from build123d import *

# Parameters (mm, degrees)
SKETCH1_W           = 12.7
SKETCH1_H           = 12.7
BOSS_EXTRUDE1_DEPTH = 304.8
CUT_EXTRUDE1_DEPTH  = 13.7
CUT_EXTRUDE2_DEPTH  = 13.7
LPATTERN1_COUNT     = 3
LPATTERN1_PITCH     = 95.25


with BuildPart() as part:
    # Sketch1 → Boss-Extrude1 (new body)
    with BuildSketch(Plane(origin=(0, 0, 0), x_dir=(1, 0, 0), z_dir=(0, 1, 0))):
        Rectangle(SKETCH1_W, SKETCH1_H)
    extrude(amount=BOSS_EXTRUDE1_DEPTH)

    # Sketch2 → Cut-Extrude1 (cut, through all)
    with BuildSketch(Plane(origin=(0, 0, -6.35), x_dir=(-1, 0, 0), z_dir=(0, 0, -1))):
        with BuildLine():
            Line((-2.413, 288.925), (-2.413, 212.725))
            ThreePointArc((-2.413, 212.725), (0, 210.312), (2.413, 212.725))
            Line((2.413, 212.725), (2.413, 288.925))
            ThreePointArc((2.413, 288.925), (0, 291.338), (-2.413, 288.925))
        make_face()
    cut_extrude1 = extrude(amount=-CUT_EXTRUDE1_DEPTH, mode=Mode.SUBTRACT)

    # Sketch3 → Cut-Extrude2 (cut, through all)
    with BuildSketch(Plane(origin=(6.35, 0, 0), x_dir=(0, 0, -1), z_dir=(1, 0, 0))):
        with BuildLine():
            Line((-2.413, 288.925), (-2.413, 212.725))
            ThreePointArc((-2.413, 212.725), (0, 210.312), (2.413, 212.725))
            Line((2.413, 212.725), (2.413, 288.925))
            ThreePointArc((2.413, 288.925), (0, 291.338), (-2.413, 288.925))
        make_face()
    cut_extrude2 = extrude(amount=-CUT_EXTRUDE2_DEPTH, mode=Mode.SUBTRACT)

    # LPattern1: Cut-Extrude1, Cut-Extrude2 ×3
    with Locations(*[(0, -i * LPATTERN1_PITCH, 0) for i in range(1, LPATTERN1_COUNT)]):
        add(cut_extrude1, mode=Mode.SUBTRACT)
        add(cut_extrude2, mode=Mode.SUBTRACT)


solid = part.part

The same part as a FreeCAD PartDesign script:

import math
import FreeCAD as App
import Part
import Sketcher
Q = App.Units.Quantity

doc = App.newDocument("Part")
body = doc.addObject("PartDesign::Body", "Body")

sketch1 = body.newObject("Sketcher::SketchObject", "Sketch")
sketch1.AttachmentSupport = (doc.getObject("XZ_Plane"), [""])
sketch1.MapMode = "FlatFace"
sketch1.addGeometry([
    Part.LineSegment(App.Vector(-6.35, -6.35, 0), App.Vector(-6.35, 6.35, 0)),
    Part.LineSegment(App.Vector(-6.35, 6.35, 0), App.Vector(6.35, 6.35, 0)),
    Part.LineSegment(App.Vector(6.35, 6.35, 0), App.Vector(6.35, -6.35, 0)),
    Part.LineSegment(App.Vector(6.35, -6.35, 0), App.Vector(-6.35, -6.35, 0)),
], False)
sketch1.addConstraint([
    Sketcher.Constraint("Coincident", 0, 2, 1, 1),
    Sketcher.Constraint("Coincident", 1, 2, 2, 1),
    Sketcher.Constraint("Coincident", 2, 2, 3, 1),
    Sketcher.Constraint("Coincident", 3, 2, 0, 1),
    Sketcher.Constraint("Vertical", 0),
    Sketcher.Constraint("Horizontal", 1),
    Sketcher.Constraint("Vertical", 2),
    Sketcher.Constraint("Horizontal", 3),
    Sketcher.Constraint("Symmetric", 0, 2, 2, 2, -1, 1),
    Sketcher.Constraint("Equal", 3, 0),
    Sketcher.Constraint("DistanceX", 1, 1, 1, 2, Q("0.5 in")),
])
pad1 = body.newObject("PartDesign::Pad", "Pad")
pad1.Profile = sketch1
pad1.Length = Q("12 in")
pad1.Reversed = True

sketch2 = body.newObject("Sketcher::SketchObject", "Sketch001")
sketch2.AttachmentSupport = (doc.getObject("XY_Plane"), [""])
sketch2.MapMode = "FlatFace"
sketch2.AttachmentOffset = App.Placement(App.Vector(0, 0, -0.25 * 25.4), App.Rotation())
sketch2.addGeometry([
    Part.LineSegment(App.Vector(2.413, 288.925, 0), App.Vector(2.413, 212.725, 0)),
    Part.ArcOfCircle(Part.Circle(App.Vector(0, 212.725, 0), App.Vector(0, 0, 1), 2.413), math.radians(180), math.radians(360)),
    Part.LineSegment(App.Vector(-2.413, 212.725, 0), App.Vector(-2.413, 288.925, 0)),
    Part.ArcOfCircle(Part.Circle(App.Vector(0, 288.925, 0), App.Vector(0, 0, 1), 2.413), math.radians(0), math.radians(180)),
], False)
sketch2.addConstraint([
    Sketcher.Constraint("Tangent", 0, 2, 1, 2),
    Sketcher.Constraint("Tangent", 1, 1, 2, 1),
    Sketcher.Constraint("Tangent", 2, 2, 3, 2),
    Sketcher.Constraint("Tangent", 3, 1, 0, 1),
    Sketcher.Constraint("Vertical", 0),
    Sketcher.Constraint("Vertical", 2),
    Sketcher.Constraint("PointOnObject", 1, 3, -2),
    Sketcher.Constraint("DistanceY", 0, 2, 0, 1, Q("3 in")),
    Sketcher.Constraint("Radius", 1, Q("0.095 in")),
    Sketcher.Constraint("DistanceY", -1, 1, 1, 3, Q("8.375 in")),
])
pocket1 = body.newObject("PartDesign::Pocket", "Pocket")
pocket1.Profile = sketch2
pocket1.Type = "ThroughAll"
pocket1.Reversed = True

sketch3 = body.newObject("Sketcher::SketchObject", "Sketch002")
sketch3.AttachmentSupport = (doc.getObject("YZ_Plane"), [""])
sketch3.MapMode = "FlatFace"
sketch3.AttachmentOffset = App.Placement(App.Vector(0, 0, 0.25 * 25.4), App.Rotation())
sketch3.addGeometry([
    Part.LineSegment(App.Vector(288.925, 2.413, 0), App.Vector(212.725, 2.413, 0)),
    Part.ArcOfCircle(Part.Circle(App.Vector(212.725, 0, 0), App.Vector(0, 0, 1), 2.413), math.radians(90), math.radians(270)),
    Part.LineSegment(App.Vector(212.725, -2.413, 0), App.Vector(288.925, -2.413, 0)),
    Part.ArcOfCircle(Part.Circle(App.Vector(288.925, 0, 0), App.Vector(0, 0, 1), 2.413), math.radians(-90), math.radians(90)),
], False)
sketch3.addConstraint([
    Sketcher.Constraint("Tangent", 0, 2, 1, 1),
    Sketcher.Constraint("Tangent", 1, 2, 2, 1),
    Sketcher.Constraint("Tangent", 2, 2, 3, 1),
    Sketcher.Constraint("Tangent", 3, 2, 0, 1),
    Sketcher.Constraint("Horizontal", 0),
    Sketcher.Constraint("Horizontal", 2),
    Sketcher.Constraint("PointOnObject", 1, 3, -1),
    Sketcher.Constraint("DistanceX", 0, 2, 0, 1, Q("3 in")),
    Sketcher.Constraint("Radius", 1, Q("0.095 in")),
    Sketcher.Constraint("DistanceX", -1, 1, 1, 3, Q("8.375 in")),
])
pocket2 = body.newObject("PartDesign::Pocket", "Pocket001")
pocket2.Profile = sketch3
pocket2.Type = "ThroughAll"
doc.recompute()

linearpattern = body.newObject("PartDesign::LinearPattern", "LinearPattern")
linearpattern.Originals = [pocket1, pocket2]
linearpattern.Direction = (doc.getObject("Y_Axis"), [""])
linearpattern.Mode = "offset"
linearpattern.Offset = Q("3.75 in")
linearpattern.Occurrences = 3
linearpattern.Reversed = True
body.Tip = linearpattern

doc.recompute()
